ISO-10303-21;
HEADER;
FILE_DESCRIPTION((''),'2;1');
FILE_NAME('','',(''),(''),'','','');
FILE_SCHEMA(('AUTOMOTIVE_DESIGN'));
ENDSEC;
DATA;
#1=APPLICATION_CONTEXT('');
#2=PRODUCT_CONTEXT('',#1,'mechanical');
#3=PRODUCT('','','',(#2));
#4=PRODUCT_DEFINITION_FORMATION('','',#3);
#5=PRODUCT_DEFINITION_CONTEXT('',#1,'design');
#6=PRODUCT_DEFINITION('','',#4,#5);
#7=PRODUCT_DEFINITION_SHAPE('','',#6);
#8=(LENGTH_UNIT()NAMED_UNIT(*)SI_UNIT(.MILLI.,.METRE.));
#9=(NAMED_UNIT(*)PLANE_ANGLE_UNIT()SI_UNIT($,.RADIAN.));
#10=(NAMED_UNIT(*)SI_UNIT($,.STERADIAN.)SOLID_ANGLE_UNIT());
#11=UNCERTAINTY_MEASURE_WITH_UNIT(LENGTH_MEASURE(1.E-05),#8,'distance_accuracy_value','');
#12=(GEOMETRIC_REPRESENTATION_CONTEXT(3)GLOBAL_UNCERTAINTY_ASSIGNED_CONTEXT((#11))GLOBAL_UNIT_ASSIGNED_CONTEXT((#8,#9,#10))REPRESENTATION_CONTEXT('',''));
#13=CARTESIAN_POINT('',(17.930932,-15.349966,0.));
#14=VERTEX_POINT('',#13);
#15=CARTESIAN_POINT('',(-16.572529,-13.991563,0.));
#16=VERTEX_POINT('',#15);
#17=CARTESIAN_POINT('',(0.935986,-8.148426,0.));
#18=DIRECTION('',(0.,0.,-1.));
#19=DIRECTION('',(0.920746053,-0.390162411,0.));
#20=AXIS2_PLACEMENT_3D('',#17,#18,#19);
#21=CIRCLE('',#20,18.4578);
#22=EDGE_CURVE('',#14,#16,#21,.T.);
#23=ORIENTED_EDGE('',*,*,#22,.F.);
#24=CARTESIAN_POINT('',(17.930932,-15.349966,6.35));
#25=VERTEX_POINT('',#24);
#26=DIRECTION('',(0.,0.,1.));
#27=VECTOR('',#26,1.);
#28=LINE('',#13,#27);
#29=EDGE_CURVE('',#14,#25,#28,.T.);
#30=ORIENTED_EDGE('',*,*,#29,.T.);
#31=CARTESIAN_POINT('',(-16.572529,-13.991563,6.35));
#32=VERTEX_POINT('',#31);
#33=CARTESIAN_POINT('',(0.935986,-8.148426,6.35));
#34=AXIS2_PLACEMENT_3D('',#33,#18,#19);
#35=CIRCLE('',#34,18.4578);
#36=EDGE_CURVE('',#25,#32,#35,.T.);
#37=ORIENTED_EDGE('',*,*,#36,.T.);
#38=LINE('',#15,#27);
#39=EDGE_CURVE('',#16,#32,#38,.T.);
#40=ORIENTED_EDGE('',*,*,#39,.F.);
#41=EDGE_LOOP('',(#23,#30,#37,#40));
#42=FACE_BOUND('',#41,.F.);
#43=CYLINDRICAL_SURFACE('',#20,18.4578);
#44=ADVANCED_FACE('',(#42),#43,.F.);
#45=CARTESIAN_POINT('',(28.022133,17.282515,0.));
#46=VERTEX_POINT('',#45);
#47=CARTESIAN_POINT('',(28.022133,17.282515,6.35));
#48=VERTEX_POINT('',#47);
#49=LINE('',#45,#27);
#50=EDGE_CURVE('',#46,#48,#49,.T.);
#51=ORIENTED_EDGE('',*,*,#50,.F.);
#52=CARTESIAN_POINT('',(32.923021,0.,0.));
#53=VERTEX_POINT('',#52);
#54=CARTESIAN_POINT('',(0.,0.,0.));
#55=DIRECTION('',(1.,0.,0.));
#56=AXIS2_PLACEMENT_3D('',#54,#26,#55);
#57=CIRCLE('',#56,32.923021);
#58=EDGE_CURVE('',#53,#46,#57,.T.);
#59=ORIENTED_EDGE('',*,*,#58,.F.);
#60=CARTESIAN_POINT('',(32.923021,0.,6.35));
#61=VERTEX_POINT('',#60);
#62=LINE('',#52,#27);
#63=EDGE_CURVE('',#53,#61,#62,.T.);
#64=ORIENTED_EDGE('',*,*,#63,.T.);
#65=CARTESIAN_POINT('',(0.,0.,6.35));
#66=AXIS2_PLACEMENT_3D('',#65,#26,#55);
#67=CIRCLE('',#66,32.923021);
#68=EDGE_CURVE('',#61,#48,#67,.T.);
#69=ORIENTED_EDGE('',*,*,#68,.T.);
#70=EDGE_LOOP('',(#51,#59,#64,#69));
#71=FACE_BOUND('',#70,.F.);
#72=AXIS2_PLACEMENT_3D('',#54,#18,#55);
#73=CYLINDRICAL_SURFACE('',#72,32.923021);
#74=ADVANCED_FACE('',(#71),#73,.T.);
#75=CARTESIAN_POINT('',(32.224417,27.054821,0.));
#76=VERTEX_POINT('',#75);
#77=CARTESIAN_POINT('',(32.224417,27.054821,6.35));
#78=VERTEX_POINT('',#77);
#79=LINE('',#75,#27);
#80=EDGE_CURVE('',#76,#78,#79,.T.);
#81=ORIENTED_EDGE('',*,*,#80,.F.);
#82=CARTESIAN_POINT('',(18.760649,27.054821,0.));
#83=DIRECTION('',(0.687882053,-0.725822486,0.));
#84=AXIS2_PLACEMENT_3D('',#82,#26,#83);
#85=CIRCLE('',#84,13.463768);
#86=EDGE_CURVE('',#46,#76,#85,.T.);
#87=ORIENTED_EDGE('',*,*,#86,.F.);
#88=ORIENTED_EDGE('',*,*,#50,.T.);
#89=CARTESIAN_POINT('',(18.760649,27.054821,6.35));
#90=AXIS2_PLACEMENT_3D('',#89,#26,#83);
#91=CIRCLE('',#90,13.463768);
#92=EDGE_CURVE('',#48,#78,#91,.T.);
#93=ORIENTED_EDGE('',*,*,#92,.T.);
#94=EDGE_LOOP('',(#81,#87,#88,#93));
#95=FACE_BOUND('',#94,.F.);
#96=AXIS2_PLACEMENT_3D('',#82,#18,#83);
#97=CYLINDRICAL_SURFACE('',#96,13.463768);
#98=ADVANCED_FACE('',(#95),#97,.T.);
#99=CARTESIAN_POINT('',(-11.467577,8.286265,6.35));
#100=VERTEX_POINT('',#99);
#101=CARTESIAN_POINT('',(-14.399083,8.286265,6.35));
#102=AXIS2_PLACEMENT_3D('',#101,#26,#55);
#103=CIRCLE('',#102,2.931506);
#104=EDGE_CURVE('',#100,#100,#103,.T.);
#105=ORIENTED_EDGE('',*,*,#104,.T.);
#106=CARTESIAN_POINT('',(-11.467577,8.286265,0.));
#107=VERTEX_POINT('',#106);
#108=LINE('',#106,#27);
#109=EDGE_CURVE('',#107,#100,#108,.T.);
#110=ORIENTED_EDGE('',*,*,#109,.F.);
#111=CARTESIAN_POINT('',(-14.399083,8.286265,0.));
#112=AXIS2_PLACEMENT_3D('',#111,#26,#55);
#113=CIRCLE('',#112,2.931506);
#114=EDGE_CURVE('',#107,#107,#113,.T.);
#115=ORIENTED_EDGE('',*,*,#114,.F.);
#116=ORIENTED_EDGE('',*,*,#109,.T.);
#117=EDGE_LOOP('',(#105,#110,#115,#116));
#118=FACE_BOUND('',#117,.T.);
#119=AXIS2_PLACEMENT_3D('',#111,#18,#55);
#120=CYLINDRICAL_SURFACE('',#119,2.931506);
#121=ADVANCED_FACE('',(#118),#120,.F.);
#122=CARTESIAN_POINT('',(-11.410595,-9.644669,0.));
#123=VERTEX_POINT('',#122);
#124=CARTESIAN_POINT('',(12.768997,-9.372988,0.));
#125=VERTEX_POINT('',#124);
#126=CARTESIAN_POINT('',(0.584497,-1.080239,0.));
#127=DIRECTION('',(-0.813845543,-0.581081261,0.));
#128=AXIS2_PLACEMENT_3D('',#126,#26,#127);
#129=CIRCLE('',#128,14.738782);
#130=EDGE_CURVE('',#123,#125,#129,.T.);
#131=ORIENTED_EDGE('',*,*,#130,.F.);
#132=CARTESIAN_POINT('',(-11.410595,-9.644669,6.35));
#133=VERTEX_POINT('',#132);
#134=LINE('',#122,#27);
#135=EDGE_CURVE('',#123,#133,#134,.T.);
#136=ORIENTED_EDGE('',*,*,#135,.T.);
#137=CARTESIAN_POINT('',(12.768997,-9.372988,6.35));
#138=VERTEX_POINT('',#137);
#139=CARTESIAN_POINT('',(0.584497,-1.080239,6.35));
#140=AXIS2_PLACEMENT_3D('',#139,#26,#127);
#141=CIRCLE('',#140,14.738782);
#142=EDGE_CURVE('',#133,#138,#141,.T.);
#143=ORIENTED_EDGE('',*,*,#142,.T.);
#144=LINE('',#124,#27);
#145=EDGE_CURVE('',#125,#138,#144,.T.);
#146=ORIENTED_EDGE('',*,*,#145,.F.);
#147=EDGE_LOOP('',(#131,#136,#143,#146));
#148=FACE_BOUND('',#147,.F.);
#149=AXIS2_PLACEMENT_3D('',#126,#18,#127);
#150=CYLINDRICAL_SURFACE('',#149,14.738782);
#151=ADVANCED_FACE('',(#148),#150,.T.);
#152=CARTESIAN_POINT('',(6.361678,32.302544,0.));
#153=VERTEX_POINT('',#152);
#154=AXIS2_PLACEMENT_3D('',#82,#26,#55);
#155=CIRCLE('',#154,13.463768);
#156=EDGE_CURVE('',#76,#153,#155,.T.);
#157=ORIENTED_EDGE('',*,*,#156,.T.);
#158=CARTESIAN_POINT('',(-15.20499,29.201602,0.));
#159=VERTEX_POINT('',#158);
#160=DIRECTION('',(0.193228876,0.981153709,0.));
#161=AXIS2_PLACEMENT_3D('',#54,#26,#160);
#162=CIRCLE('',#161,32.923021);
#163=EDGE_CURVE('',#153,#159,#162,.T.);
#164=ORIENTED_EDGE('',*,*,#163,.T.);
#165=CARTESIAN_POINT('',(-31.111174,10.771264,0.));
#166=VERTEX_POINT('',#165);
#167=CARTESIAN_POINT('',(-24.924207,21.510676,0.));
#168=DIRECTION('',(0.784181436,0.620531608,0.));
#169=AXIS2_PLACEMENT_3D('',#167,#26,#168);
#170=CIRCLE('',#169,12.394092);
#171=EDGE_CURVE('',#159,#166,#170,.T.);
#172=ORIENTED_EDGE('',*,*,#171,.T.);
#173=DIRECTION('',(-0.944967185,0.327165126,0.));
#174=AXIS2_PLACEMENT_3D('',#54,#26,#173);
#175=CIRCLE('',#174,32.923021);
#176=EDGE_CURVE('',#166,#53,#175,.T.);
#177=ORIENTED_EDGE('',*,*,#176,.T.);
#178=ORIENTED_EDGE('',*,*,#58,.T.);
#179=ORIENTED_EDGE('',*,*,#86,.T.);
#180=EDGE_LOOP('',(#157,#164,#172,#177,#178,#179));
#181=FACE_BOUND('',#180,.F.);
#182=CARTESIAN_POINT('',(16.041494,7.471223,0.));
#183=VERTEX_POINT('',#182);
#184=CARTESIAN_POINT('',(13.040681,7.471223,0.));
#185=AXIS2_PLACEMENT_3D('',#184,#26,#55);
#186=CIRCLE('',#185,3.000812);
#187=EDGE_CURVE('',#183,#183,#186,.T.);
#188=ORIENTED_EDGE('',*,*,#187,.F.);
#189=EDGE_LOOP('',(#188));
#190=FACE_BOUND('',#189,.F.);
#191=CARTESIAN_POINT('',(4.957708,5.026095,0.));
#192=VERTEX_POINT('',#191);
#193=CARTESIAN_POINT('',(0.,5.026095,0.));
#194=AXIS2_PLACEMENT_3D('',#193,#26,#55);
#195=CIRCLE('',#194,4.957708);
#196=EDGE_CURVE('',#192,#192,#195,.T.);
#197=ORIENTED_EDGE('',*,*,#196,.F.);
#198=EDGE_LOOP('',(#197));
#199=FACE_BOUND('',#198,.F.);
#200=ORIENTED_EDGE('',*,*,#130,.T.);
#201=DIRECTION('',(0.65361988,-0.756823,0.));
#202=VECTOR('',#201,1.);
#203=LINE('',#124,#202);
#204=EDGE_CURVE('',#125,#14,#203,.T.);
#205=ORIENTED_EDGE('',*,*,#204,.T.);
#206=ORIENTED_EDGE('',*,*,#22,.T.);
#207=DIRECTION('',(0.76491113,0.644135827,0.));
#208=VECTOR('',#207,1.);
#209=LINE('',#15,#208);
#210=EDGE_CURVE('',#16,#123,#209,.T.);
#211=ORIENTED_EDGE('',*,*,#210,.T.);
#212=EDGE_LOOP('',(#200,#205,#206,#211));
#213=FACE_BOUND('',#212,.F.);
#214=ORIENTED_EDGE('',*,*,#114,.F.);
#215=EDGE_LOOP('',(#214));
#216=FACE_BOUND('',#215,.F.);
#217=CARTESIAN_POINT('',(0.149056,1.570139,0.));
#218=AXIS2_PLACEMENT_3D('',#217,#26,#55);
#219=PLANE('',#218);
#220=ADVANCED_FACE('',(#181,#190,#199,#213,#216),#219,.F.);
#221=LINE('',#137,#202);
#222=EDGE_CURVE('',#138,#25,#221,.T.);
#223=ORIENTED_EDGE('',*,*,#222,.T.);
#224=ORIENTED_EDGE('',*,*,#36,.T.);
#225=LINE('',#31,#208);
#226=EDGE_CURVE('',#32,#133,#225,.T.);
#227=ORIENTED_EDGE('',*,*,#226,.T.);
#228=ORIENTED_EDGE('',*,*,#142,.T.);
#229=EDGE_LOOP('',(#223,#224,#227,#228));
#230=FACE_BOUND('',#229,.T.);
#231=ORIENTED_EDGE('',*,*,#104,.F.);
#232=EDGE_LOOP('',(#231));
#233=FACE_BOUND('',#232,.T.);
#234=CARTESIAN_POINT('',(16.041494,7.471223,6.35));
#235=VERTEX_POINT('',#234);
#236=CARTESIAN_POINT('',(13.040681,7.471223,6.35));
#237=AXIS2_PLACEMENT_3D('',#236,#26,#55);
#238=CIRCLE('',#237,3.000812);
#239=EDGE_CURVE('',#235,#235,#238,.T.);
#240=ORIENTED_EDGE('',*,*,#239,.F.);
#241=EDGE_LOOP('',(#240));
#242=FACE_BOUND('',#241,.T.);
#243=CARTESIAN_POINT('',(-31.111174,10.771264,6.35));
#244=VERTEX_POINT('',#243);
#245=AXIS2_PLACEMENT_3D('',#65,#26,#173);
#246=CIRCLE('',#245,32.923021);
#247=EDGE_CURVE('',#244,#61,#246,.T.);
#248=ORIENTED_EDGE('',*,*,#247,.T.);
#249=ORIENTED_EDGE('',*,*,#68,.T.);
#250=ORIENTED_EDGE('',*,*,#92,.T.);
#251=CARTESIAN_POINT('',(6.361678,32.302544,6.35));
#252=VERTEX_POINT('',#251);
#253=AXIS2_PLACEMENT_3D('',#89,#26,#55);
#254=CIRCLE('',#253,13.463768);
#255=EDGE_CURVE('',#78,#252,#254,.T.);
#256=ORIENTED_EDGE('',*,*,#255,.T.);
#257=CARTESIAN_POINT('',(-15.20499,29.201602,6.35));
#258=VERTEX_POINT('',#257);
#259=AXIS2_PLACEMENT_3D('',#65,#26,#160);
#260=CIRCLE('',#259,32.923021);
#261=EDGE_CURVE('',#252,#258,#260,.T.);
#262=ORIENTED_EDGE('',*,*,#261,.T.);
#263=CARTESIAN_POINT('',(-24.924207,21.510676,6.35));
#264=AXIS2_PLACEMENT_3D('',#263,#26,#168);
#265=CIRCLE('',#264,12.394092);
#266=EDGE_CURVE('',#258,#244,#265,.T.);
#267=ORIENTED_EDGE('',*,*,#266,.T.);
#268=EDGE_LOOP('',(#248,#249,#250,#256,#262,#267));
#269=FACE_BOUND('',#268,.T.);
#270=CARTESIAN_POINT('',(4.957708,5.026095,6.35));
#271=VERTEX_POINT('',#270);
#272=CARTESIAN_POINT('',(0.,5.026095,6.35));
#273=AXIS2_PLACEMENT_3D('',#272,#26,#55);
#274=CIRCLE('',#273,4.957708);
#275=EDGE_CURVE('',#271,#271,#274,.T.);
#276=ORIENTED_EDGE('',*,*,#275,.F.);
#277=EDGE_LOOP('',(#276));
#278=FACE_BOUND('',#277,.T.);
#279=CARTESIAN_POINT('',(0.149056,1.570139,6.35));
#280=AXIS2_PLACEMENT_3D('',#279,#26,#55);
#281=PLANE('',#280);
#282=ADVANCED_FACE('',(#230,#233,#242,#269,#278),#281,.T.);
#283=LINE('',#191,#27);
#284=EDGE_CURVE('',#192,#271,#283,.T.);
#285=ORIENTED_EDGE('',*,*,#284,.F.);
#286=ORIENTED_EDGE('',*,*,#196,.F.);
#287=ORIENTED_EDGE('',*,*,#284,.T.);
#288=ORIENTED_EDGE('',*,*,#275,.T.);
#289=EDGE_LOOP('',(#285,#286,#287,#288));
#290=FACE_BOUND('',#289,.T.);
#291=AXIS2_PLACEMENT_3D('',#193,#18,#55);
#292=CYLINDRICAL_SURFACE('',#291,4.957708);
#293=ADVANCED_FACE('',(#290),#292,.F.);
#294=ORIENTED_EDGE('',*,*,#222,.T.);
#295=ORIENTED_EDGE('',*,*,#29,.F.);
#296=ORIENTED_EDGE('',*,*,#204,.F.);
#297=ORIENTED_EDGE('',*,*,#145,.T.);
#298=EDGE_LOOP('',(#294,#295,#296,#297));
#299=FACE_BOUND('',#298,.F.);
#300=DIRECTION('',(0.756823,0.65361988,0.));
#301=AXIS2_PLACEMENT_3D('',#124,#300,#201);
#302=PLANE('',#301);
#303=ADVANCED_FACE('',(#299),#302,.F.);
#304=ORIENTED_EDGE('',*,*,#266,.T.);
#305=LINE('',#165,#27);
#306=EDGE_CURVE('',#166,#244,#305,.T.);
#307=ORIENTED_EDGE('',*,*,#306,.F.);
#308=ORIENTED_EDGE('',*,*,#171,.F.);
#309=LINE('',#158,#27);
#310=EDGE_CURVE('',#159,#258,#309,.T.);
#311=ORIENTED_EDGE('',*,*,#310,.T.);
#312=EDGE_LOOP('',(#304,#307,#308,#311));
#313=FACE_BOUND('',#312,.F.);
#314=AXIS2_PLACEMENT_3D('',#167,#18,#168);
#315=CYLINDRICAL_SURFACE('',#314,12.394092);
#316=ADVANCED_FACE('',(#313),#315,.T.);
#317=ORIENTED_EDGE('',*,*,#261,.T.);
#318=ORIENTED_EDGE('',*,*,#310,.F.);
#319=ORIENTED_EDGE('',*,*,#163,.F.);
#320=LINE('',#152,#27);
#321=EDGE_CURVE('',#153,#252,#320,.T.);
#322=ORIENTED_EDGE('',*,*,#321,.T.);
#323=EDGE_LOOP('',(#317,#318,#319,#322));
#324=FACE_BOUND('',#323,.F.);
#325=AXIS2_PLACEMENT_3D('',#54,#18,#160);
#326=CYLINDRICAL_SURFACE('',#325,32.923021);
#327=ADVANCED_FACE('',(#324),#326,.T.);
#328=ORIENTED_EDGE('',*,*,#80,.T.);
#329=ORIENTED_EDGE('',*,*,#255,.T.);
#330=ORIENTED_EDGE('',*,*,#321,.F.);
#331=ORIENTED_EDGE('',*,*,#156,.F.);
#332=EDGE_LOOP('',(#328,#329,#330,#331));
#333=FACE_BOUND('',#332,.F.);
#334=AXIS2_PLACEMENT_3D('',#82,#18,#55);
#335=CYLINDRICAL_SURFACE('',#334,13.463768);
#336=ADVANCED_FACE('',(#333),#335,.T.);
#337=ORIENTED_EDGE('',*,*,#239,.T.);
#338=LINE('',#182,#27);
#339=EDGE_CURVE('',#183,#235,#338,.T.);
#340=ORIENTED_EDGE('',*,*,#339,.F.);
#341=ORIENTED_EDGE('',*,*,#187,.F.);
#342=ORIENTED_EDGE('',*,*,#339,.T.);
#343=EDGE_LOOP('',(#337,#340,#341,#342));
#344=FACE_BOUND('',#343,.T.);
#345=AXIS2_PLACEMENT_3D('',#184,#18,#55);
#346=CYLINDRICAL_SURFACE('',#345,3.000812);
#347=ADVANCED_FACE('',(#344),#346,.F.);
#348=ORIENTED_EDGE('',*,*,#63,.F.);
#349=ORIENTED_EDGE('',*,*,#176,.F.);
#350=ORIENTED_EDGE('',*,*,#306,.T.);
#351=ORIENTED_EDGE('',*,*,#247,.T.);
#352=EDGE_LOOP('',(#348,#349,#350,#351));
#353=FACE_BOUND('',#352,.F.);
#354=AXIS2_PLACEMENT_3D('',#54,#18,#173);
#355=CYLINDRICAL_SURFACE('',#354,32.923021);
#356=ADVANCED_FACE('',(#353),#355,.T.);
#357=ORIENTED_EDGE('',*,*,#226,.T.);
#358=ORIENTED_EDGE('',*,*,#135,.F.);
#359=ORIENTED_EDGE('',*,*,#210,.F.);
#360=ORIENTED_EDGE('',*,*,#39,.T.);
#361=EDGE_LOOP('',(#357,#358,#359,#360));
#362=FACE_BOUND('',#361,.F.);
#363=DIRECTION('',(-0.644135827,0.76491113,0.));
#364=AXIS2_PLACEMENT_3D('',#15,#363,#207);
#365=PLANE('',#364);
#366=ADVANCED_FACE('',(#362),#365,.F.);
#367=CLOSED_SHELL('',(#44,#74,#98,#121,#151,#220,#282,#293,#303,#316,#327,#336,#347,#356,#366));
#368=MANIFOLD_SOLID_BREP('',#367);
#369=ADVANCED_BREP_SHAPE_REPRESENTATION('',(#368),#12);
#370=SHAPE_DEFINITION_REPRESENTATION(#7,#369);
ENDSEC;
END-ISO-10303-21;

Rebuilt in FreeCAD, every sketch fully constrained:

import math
import FreeCAD as App
import Part
import Sketcher
from FreeCAD import Vector
Q = App.Units.Quantity

doc = App.newDocument("Part")
body = doc.addObject("PartDesign::Body", "Body")

# Sketch on XY plane
sketch1 = body.newObject("Sketcher::SketchObject", "Sketch")
sketch1.AttachmentSupport = (doc.getObject("XY_Plane"), [""])
sketch1.MapMode = "FlatFace"
sketch1.addGeometry([
    Part.ArcOfCircle(Part.Circle(Vector(0, 0, 0), Vector(0, 0, 1), 32.9), math.radians(161), math.radians(360)),  # 0
    Part.ArcOfCircle(Part.Circle(Vector(0, 0, 0), Vector(0, 0, 1), 32.9), math.radians(0), math.radians(32)),  # 1
    Part.ArcOfCircle(Part.Circle(Vector(18.8, 27.1, 0), Vector(0, 0, 1), 13.5), math.radians(-47), math.radians(0)),  # 2
    Part.ArcOfCircle(Part.Circle(Vector(18.8, 27.1, 0), Vector(0, 0, 1), 13.5), math.radians(0), math.radians(157)),  # 3
    Part.ArcOfCircle(Part.Circle(Vector(0, 0, 0), Vector(0, 0, 1), 32.9), math.radians(79), math.radians(118)),  # 4
    Part.ArcOfCircle(Part.Circle(Vector(-24.9, 21.5, 0), Vector(0, 0, 1), 12.4), math.radians(38), math.radians(240)),  # 5
    Part.LineSegment(Vector(12.8, -9.4, 0), Vector(17.9, -15.3, 0)),  # 6
    Part.ArcOfCircle(Part.Circle(Vector(0.9, -8.1, 0), Vector(0, 0, 1), 18.5), math.radians(-162), math.radians(-23)),  # 7
    Part.LineSegment(Vector(-16.6, -14, 0), Vector(-11.4, -9.6, 0)),  # 8
    Part.ArcOfCircle(Part.Circle(Vector(0.6, -1.1, 0), Vector(0, 0, 1), 14.7), math.radians(-144), math.radians(-34)),  # 9
    Part.Circle(Vector(-14.4, 8.3, 0), Vector(0, 0, 1), 2.9),  # 10
    Part.Circle(Vector(0, 5, 0), Vector(0, 0, 1), 5),  # 11
    Part.Circle(Vector(13, 7.5, 0), Vector(0, 0, 1), 3),  # 12
], False)
sketch1.addConstraint([
    Sketcher.Constraint("Tangent", 0, 2, 1, 1),
    Sketcher.Constraint("Coincident", 1, 2, 2, 1),
    Sketcher.Constraint("Tangent", 2, 2, 3, 1),
    Sketcher.Constraint("Coincident", 3, 2, 4, 1),
    Sketcher.Constraint("Coincident", 4, 2, 5, 1),
    Sketcher.Constraint("Coincident", 5, 2, 0, 1),
    Sketcher.Constraint("Coincident", 6, 2, 7, 2),
    Sketcher.Constraint("Coincident", 7, 1, 8, 1),
    Sketcher.Constraint("Coincident", 8, 2, 9, 1),
    Sketcher.Constraint("Coincident", 9, 2, 6, 1),
    Sketcher.Constraint("Coincident", 0, 3, -1, 1),
    Sketcher.Constraint("Coincident", 4, 3, -1, 1),
    Sketcher.Constraint("Equal", 0, 1),
    Sketcher.Constraint("Equal", 2, 3),
    Sketcher.Constraint("Equal", 1, 4),
    Sketcher.Constraint("PointOnObject", 11, 3, -2),
    Sketcher.Constraint("PointOnObject", 0, 2, -1),
    Sketcher.Constraint("Horizontal", 3, 3, 2, 2),
    Sketcher.Constraint("Radius", 7, 18.4578),
    Sketcher.Constraint("Diameter", 10, 5.863012),
    Sketcher.Constraint("Radius", 0, 32.923021),
    Sketcher.Constraint("Radius", 2, 13.463768),
    Sketcher.Constraint("Diameter", 11, 9.915417),
    Sketcher.Constraint("Diameter", 12, 6.001624),
    Sketcher.Constraint("Radius", 5, 12.394092),
    Sketcher.Constraint("Radius", 9, 14.738782),
    Sketcher.Constraint("DistanceY", 7, 3, 5, 3, 29.659102),
    Sketcher.Constraint("DistanceY", 12, 3, 2, 2, 19.583598),
    Sketcher.Constraint("DistanceY", 10, 3, 5, 2, 2.484999),
    Sketcher.Constraint("DistanceX", 9, 3, 9, 2, 12.184499),
    Sketcher.Constraint("Distance", 8, 6.748411),
    Sketcher.Constraint("DistanceX", -1, 1, 2, 3, 18.760649),
    Sketcher.Constraint("DistanceY", -1, 1, 2, 3, 27.054821),
    Sketcher.Constraint("DistanceY", 9, 3, -1, 1, 1.080239),
    Sketcher.Constraint("DistanceX", -1, 1, 12, 3, 13.040681),
    Sketcher.Constraint("DistanceX", 4, 2, -1, 1, 15.20499),
    Sketcher.Constraint("DistanceX", 7, 1, -1, 1, 16.572529),
    Sketcher.Constraint("DistanceY", 8, 2, -1, 1, 9.644669),
    Sketcher.Constraint("DistanceX", 9, 3, 7, 3, 0.351489),
    Sketcher.Constraint("DistanceX", 9, 3, 2, 3, 18.176151),
    Sketcher.Constraint("DistanceX", 10, 3, 9, 3, 14.983581),
    Sketcher.Constraint("DistanceY", 7, 3, 11, 3, 13.174521),
    Sketcher.Constraint("DistanceY", 6, 2, 7, 3, 7.20154),
])
pad1 = body.newObject("PartDesign::Pad", "Pad")
pad1.Profile = sketch1
pad1.Length = Q("0.25 in")

doc.recompute()
